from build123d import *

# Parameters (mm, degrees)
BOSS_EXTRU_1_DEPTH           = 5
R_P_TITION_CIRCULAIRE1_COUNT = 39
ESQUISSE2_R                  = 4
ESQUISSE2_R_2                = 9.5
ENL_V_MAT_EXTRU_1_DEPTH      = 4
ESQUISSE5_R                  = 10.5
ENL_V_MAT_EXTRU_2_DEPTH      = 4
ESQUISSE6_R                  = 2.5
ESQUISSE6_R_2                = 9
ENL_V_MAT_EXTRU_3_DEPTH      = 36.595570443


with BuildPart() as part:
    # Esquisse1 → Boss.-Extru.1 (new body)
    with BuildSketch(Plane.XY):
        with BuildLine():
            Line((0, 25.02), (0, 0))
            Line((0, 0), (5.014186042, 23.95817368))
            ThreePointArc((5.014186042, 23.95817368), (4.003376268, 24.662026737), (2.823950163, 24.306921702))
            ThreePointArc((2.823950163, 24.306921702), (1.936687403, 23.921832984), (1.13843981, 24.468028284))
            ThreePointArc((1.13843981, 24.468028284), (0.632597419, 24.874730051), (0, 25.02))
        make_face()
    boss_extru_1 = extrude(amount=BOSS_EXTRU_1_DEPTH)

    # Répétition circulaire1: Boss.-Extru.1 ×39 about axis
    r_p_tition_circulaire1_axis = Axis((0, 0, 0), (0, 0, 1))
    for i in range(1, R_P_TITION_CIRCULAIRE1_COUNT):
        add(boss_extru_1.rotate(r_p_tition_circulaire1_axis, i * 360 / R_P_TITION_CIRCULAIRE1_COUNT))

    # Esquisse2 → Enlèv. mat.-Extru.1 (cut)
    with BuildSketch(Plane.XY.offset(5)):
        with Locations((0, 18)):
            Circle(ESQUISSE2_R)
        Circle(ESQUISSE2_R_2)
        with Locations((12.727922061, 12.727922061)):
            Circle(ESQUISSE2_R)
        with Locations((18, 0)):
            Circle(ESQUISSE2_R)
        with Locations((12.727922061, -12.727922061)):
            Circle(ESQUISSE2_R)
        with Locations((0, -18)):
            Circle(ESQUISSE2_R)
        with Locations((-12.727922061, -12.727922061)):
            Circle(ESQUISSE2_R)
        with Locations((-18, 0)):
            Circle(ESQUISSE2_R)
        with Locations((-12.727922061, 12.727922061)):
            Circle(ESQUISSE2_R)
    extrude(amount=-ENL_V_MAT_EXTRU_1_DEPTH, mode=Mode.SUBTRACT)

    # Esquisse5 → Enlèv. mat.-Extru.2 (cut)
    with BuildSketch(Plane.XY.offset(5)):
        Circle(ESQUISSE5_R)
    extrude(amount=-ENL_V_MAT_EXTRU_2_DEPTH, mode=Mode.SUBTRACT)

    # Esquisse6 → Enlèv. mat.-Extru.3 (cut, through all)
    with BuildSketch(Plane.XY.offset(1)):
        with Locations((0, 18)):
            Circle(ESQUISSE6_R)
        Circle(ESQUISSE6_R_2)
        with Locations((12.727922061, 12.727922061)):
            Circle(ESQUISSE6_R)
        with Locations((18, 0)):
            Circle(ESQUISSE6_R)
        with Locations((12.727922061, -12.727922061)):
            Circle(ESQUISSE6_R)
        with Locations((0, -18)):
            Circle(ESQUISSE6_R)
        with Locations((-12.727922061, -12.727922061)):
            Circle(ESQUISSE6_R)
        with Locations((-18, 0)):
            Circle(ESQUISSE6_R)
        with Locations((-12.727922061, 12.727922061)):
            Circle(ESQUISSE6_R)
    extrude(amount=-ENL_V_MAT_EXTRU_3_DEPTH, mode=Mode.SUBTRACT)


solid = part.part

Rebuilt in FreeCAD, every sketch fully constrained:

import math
import FreeCAD as App
import Part
import Sketcher
from FreeCAD import Vector
Q = App.Units.Quantity

doc = App.newDocument("Part")
body = doc.addObject("PartDesign::Body", "Body")

# Sketch on XY plane
sketch1 = body.newObject("Sketcher::SketchObject", "Sketch")
sketch1.AttachmentSupport = (doc.getObject("XY_Plane"), [""])
sketch1.MapMode = "FlatFace"
sketch1.addGeometry([
    Part.LineSegment(Vector(0, 25, 0), Vector(0, 0, 0)),  # 0
    Part.LineSegment(Vector(0, 0, 0), Vector(5, 24, 0)),  # 1
    Part.ArcOfCircle(Part.Circle(Vector(3.8, 23.3, 0), Vector(0, 0, 1), 1.4), math.radians(29), math.radians(133)),  # 2
    Part.ArcOfCircle(Part.Circle(Vector(2, 24.9, 0), Vector(0, 0, 1), 1), math.radians(-153), math.radians(-38)),  # 3
    Part.ArcOfCircle(Part.Circle(Vector(0, 23.6, 0), Vector(0, 0, 1), 1.4), math.radians(38), math.radians(90)),  # 4
], False)
sketch1.addConstraint([
    Sketcher.Constraint("Coincident", 0, 2, 1, 1),
    Sketcher.Constraint("Coincident", 1, 2, 2, 1),
    Sketcher.Constraint("Coincident", 2, 2, 3, 2),
    Sketcher.Constraint("Coincident", 3, 1, 4, 1),
    Sketcher.Constraint("Coincident", 4, 2, 0, 1),
    Sketcher.Constraint("Vertical", 0),
    Sketcher.Constraint("Coincident", 0, 2, -1, 1),
    Sketcher.Constraint("PointOnObject", 4, 3, -2),
    Sketcher.Constraint("Radius", 3, Q("1 mm")),
    Sketcher.Constraint("Radius", 4, Q("1.45 mm")),
    Sketcher.Constraint("DistanceY", 0, 2, 0, 1, Q("25.02 mm")),
    Sketcher.Constraint("Radius", 2, Q("1.414854 mm")),
    Sketcher.Constraint("DistanceY", 2, 3, 1, 2, Q("0.693399 mm")),
    Sketcher.Constraint("DistanceX", -1, 1, 2, 2, Q("2.82395 mm")),
    Sketcher.Constraint("DistanceY", -1, 1, 2, 2, Q("24.306922 mm")),
    Sketcher.Constraint("DistanceX", -1, 1, 3, 1, Q("1.13844 mm")),
    Sketcher.Constraint("DistanceY", 2, 3, 3, 3, Q("1.652521 mm")),
])
pad1 = body.newObject("PartDesign::Pad", "Pad")
pad1.Profile = sketch1
pad1.Length = 5
doc.recompute()

polarpattern = body.newObject("PartDesign::PolarPattern", "PolarPattern")
polarpattern.Originals = [pad1]
polarpattern.Axis = (doc.getObject("Z_Axis"), [""])
polarpattern.Angle = 360
polarpattern.Occurrences = 39
body.Tip = polarpattern

# Sketch on XY plane
sketch2 = body.newObject("Sketcher::SketchObject", "Sketch001")
sketch2.AttachmentSupport = (doc.getObject("XY_Plane"), [""])
sketch2.MapMode = "FlatFace"
sketch2.AttachmentOffset = App.Placement(Vector(0, 0, 5), App.Rotation())
sketch2.addGeometry([
    Part.Circle(Vector(0, 18, 0), Vector(0, 0, 1), 4),  # 0
    Part.Circle(Vector(0, 0, 0), Vector(0, 0, 1), 9.5),  # 1
    Part.Circle(Vector(12.7, 12.7, 0), Vector(0, 0, 1), 4),  # 2
    Part.Circle(Vector(18, 0, 0), Vector(0, 0, 1), 4),  # 3
    Part.Circle(Vector(12.7, -12.7, 0), Vector(0, 0, 1), 4),  # 4
    Part.Circle(Vector(0, -18, 0), Vector(0, 0, 1), 4),  # 5
    Part.Circle(Vector(-12.7, -12.7, 0), Vector(0, 0, 1), 4),  # 6
    Part.Circle(Vector(-18, 0, 0), Vector(0, 0, 1), 4),  # 7
    Part.Circle(Vector(-12.7, 12.7, 0), Vector(0, 0, 1), 4),  # 8
], False)
sketch2.addConstraint([
    Sketcher.Constraint("Coincident", 1, 3, -1, 1),
    Sketcher.Constraint("Equal", 0, 2),
    Sketcher.Constraint("Equal", 2, 3),
    Sketcher.Constraint("Equal", 3, 4),
    Sketcher.Constraint("Equal", 4, 5),
    Sketcher.Constraint("Equal", 5, 6),
    Sketcher.Constraint("Equal", 6, 7),
    Sketcher.Constraint("Equal", 7, 8),
    Sketcher.Constraint("Symmetric", 0, 3, 5, 3, -1, 1),
    Sketcher.Constraint("Symmetric", 2, 3, 6, 3, -1, 1),
    Sketcher.Constraint("Symmetric", 3, 3, 7, 3, -1, 1),
    Sketcher.Constraint("Symmetric", 4, 3, 8, 3, -1, 1),
    Sketcher.Constraint("Symmetric", 4, 3, 6, 3, -2),
    Sketcher.Constraint("PointOnObject", 0, 3, -2),
    Sketcher.Constraint("PointOnObject", 3, 3, -1),
    Sketcher.Constraint("Diameter", 0, Q("8 mm")),
    Sketcher.Constraint("Diameter", 1, Q("19 mm")),
    Sketcher.Constraint("DistanceY", -1, 1, 0, 3, Q("18 mm")),
    Sketcher.Constraint("DistanceX", -1, 1, 3, 3, Q("18 mm")),
    Sketcher.Constraint("DistanceX", -1, 1, 2, 3, Q("12.727922 mm")),
    Sketcher.Constraint("DistanceY", -1, 1, 2, 3, Q("12.727922 mm")),
])
pocket1 = body.newObject("PartDesign::Pocket", "Pocket")
pocket1.Profile = sketch2
pocket1.Length = 4

# Sketch on XY plane
sketch3 = body.newObject("Sketcher::SketchObject", "Sketch002")
sketch3.AttachmentSupport = (doc.getObject("XY_Plane"), [""])
sketch3.MapMode = "FlatFace"
sketch3.AttachmentOffset = App.Placement(Vector(0, 0, 5), App.Rotation())
sketch3.addGeometry(Part.Circle(Vector(0, 0, 0), Vector(0, 0, 1), 10), False)
sketch3.addConstraint([
    Sketcher.Constraint("Coincident", 0, 3, -1, 1),
    Sketcher.Constraint("Diameter", 0, Q("21 mm")),
])
pocket2 = body.newObject("PartDesign::Pocket", "Pocket001")
pocket2.Profile = sketch3
pocket2.Length = 4

# Sketch on XY plane
sketch4 = body.newObject("Sketcher::SketchObject", "Sketch003")
sketch4.AttachmentSupport = (doc.getObject("XY_Plane"), [""])
sketch4.MapMode = "FlatFace"
sketch4.AttachmentOffset = App.Placement(Vector(0, 0, 1), App.Rotation())
sketch4.addGeometry([
    Part.Circle(Vector(0, 18, 0), Vector(0, 0, 1), 2.5),  # 0
    Part.Circle(Vector(0, 0, 0), Vector(0, 0, 1), 9),  # 1
    Part.Circle(Vector(12.7, 12.7, 0), Vector(0, 0, 1), 2.5),  # 2
    Part.Circle(Vector(18, 0, 0), Vector(0, 0, 1), 2.5),  # 3
    Part.Circle(Vector(12.7, -12.7, 0), Vector(0, 0, 1), 2.5),  # 4
    Part.Circle(Vector(0, -18, 0), Vector(0, 0, 1), 2.5),  # 5
    Part.Circle(Vector(-12.7, -12.7, 0), Vector(0, 0, 1), 2.5),  # 6
    Part.Circle(Vector(-18, 0, 0), Vector(0, 0, 1), 2.5),  # 7
    Part.Circle(Vector(-12.7, 12.7, 0), Vector(0, 0, 1), 2.5),  # 8
], False)
sketch4.addConstraint([
    Sketcher.Constraint("Coincident", 1, 3, -1, 1),
    Sketcher.Constraint("Equal", 0, 2),
    Sketcher.Constraint("Equal", 2, 3),
    Sketcher.Constraint("Equal", 3, 4),
    Sketcher.Constraint("Equal", 4, 5),
    Sketcher.Constraint("Equal", 5, 6),
    Sketcher.Constraint("Equal", 6, 7),
    Sketcher.Constraint("Equal", 7, 8),
    Sketcher.Constraint("Symmetric", 0, 3, 5, 3, -1, 1),
    Sketcher.Constraint("Symmetric", 2, 3, 6, 3, -1, 1),
    Sketcher.Constraint("Symmetric", 3, 3, 7, 3, -1, 1),
    Sketcher.Constraint("Symmetric", 4, 3, 8, 3, -1, 1),
    Sketcher.Constraint("Symmetric", 4, 3, 6, 3, -2),
    Sketcher.Constraint("PointOnObject", 0, 3, -2),
    Sketcher.Constraint("PointOnObject", 3, 3, -1),
    Sketcher.Constraint("Diameter", 0, Q("5 mm")),
    Sketcher.Constraint("Diameter", 1, Q("18 mm")),
    Sketcher.Constraint("DistanceY", -1, 1, 0, 3, Q("18 mm")),
    Sketcher.Constraint("DistanceX", -1, 1, 3, 3, Q("18 mm")),
    Sketcher.Constraint("DistanceX", -1, 1, 2, 3, Q("12.727922 mm")),
    Sketcher.Constraint("DistanceY", -1, 1, 2, 3, Q("12.727922 mm")),
])
pocket3 = body.newObject("PartDesign::Pocket", "Pocket002")
pocket3.Profile = sketch4
pocket3.Type = "ThroughAll"

doc.recompute()
